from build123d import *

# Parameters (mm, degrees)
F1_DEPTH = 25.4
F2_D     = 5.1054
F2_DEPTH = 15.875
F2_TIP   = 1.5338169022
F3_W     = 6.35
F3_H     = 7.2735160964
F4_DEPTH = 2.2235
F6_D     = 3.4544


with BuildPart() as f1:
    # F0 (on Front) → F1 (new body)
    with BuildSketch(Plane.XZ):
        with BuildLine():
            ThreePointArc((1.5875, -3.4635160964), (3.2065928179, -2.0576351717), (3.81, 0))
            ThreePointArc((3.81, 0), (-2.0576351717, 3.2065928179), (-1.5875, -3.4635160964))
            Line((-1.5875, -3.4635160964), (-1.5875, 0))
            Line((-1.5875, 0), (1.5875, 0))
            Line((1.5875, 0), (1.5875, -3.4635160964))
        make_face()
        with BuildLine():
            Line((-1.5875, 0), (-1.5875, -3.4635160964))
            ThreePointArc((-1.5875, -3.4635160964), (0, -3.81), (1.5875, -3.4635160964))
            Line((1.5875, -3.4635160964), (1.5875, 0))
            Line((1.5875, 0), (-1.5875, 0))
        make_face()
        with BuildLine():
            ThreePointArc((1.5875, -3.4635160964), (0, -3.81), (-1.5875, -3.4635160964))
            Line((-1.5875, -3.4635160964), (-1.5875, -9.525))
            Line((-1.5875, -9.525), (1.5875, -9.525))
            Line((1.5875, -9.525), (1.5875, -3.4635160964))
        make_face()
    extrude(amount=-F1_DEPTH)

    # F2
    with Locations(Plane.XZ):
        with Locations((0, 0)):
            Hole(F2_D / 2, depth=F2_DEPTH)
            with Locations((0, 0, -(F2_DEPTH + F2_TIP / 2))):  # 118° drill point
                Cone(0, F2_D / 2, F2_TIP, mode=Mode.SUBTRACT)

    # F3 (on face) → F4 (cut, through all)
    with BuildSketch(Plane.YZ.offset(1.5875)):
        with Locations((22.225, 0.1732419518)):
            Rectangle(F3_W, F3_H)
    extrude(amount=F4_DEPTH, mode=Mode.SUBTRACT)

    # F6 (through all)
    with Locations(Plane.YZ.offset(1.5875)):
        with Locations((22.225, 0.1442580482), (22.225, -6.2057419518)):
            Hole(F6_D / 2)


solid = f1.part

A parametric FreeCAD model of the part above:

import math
import FreeCAD as App
import Part
import Sketcher
from FreeCAD import Vector
Q = App.Units.Quantity

doc = App.newDocument("Part")
body = doc.addObject("PartDesign::Body", "Body")

# Sketch on XZ plane
sketch1 = doc.addObject("Sketcher::SketchObject", "Sketch")
body.addObject(sketch1)
sketch1.AttachmentSupport = (doc.XZ_Plane, [""])
sketch1.MapMode = "FlatFace"
sketch1.addGeometry(Part.ArcOfCircle(Part.Circle(Vector(0, 0, 0), Vector(0, 0, 1), 3.8), math.radians(-65), math.radians(0)), False)
sketch1.addGeometry(Part.ArcOfCircle(Part.Circle(Vector(0, 0, 0), Vector(0, 0, 1), 3.8), math.radians(0), math.radians(245)), False)
sketch1.addGeometry(Part.LineSegment(Vector(-1.6, -3.5, 0), Vector(-1.6, -9.5, 0)), False)
sketch1.addGeometry(Part.LineSegment(Vector(-1.6, -9.5, 0), Vector(1.6, -9.5, 0)), False)
sketch1.addGeometry(Part.LineSegment(Vector(1.6, -9.5, 0), Vector(1.6, -3.5, 0)), False)
sketch1.addConstraint(Sketcher.Constraint("Tangent", 0, 2, 1, 1))
sketch1.addConstraint(Sketcher.Constraint("Coincident", 1, 2, 2, 1))
sketch1.addConstraint(Sketcher.Constraint("Coincident", 2, 2, 3, 1))
sketch1.addConstraint(Sketcher.Constraint("Coincident", 3, 2, 4, 1))
sketch1.addConstraint(Sketcher.Constraint("Coincident", 4, 2, 0, 1))
sketch1.addConstraint(Sketcher.Constraint("Vertical", 2))
sketch1.addConstraint(Sketcher.Constraint("Horizontal", 3))
sketch1.addConstraint(Sketcher.Constraint("Vertical", 4))
sketch1.addConstraint(Sketcher.Constraint("Coincident", 0, 3, -1, 1))
sketch1.addConstraint(Sketcher.Constraint("Equal", 0, 1))
sketch1.addConstraint(Sketcher.Constraint("PointOnObject", 0, 2, -1))
sketch1.addConstraint(Sketcher.Constraint("Horizontal", 1, 2, 4, 2))
sketch1.addConstraint(Sketcher.Constraint("Radius", 0, Q("0.15 in")))
sketch1.addConstraint(Sketcher.Constraint("DistanceX", 3, 1, 3, 2, Q("0.125 in")))
sketch1.addConstraint(Sketcher.Constraint("DistanceY", 2, 2, -1, 1, Q("0.375 in")))
pad1 = doc.addObject("PartDesign::Pad", "Pad")
body.addObject(pad1)
pad1.Profile = sketch1
pad1.Length = Q("1 in")
pad1.Reversed = True

# Sketch on XZ plane
sketch2 = doc.addObject("Sketcher::SketchObject", "Sketch001")
body.addObject(sketch2)
sketch2.AttachmentSupport = (doc.XZ_Plane, [""])
sketch2.MapMode = "FlatFace"
sketch2.addGeometry(Part.Circle(Vector(0, 0, 0), Vector(0, 0, 1), 2.6), False)
sketch2.addConstraint(Sketcher.Constraint("Coincident", 0, 3, -1, 1))
sketch2.addConstraint(Sketcher.Constraint("Diameter", 0, Q("0.201 in")))
doc.recompute()
hole = doc.addObject("PartDesign::Hole", "Hole")
body.addObject(hole)
hole.Profile = sketch2
hole.ThreadType = "None"
hole.Diameter = Q("0.201 in")
hole.DepthType = "Dimension"
hole.Depth = Q("0.625 in")
hole.DrillPoint = "Angled"
hole.DrillPointAngle = 118

# Sketch on YZ plane
sketch3 = doc.addObject("Sketcher::SketchObject", "Sketch002")
body.addObject(sketch3)
sketch3.AttachmentSupport = (doc.YZ_Plane, [""])
sketch3.MapMode = "FlatFace"
sketch3.AttachmentOffset = App.Placement(Vector(0, 0, 0.0625 * 25.4), App.Rotation())
sketch3.addGeometry(Part.LineSegment(Vector(19, 4, 0), Vector(19, -3, 0)), False)
sketch3.addGeometry(Part.LineSegment(Vector(19, -3, 0), Vector(25, -3, 0)), False)
sketch3.addGeometry(Part.LineSegment(Vector(25, -3, 0), Vector(25, 4, 0)), False)
sketch3.addGeometry(Part.LineSegment(Vector(25, 4, 0), Vector(19, 4, 0)), False)
sketch3.addConstraint(Sketcher.Constraint("Coincident", 0, 2, 1, 1))
sketch3.addConstraint(Sketcher.Constraint("Coincident", 1, 2, 2, 1))
sketch3.addConstraint(Sketcher.Constraint("Coincident", 2, 2, 3, 1))
sketch3.addConstraint(Sketcher.Constraint("Coincident", 3, 2, 0, 1))
sketch3.addConstraint(Sketcher.Constraint("Vertical", 0))
sketch3.addConstraint(Sketcher.Constraint("Horizontal", 1))
sketch3.addConstraint(Sketcher.Constraint("Vertical", 2))
sketch3.addConstraint(Sketcher.Constraint("Horizontal", 3))
sketch3.addConstraint(Sketcher.Constraint("DistanceX", -1, 1, 1, 2, Q("1 in")))
sketch3.addConstraint(Sketcher.Constraint("DistanceX", 1, 1, 1, 2, Q("0.25 in")))
sketch3.addConstraint(Sketcher.Constraint("DistanceY", -1, 1, 2, 2, Q("0.15 in")))
sketch3.addConstraint(Sketcher.Constraint("DistanceY", 0, 2, 0, 1, Q("7.273516 mm")))
pocket1 = doc.addObject("PartDesign::Pocket", "Pocket")
body.addObject(pocket1)
pocket1.Profile = sketch3
pocket1.Type = "ThroughAll"
pocket1.Reversed = True

# Sketch on YZ plane
sketch4 = doc.addObject("Sketcher::SketchObject", "Sketch003")
body.addObject(sketch4)
sketch4.AttachmentSupport = (doc.YZ_Plane, [""])
sketch4.MapMode = "FlatFace"
sketch4.AttachmentOffset = App.Placement(Vector(0, 0, 0.0625 * 25.4), App.Rotation())
sketch4.addGeometry(Part.Circle(Vector(22.2, 0.1, 0), Vector(0, 0, 1), 1.7), False)
sketch4.addGeometry(Part.Circle(Vector(22.2, -6.2, 0), Vector(0, 0, 1), 1.7), False)
sketch4.addConstraint(Sketcher.Constraint("Equal", 0, 1))
sketch4.addConstraint(Sketcher.Constraint("Vertical", 0, 3, 1, 3))
sketch4.addConstraint(Sketcher.Constraint("Diameter", 0, Q("0.136 in")))
sketch4.addConstraint(Sketcher.Constraint("DistanceY", 1, 3, 0, 3, Q("0.25 in")))
sketch4.addConstraint(Sketcher.Constraint("DistanceX", -1, 1, 0, 3, Q("0.875 in")))
sketch4.addConstraint(Sketcher.Constraint("DistanceY", -1, 1, 0, 3, Q("0.144258 mm")))
doc.recompute()
hole2 = doc.addObject("PartDesign::Hole", "Hole001")
body.addObject(hole2)
hole2.Profile = sketch4
hole2.ThreadType = "None"
hole2.Diameter = Q("0.136 in")
hole2.DepthType = "ThroughAll"

doc.recompute()
